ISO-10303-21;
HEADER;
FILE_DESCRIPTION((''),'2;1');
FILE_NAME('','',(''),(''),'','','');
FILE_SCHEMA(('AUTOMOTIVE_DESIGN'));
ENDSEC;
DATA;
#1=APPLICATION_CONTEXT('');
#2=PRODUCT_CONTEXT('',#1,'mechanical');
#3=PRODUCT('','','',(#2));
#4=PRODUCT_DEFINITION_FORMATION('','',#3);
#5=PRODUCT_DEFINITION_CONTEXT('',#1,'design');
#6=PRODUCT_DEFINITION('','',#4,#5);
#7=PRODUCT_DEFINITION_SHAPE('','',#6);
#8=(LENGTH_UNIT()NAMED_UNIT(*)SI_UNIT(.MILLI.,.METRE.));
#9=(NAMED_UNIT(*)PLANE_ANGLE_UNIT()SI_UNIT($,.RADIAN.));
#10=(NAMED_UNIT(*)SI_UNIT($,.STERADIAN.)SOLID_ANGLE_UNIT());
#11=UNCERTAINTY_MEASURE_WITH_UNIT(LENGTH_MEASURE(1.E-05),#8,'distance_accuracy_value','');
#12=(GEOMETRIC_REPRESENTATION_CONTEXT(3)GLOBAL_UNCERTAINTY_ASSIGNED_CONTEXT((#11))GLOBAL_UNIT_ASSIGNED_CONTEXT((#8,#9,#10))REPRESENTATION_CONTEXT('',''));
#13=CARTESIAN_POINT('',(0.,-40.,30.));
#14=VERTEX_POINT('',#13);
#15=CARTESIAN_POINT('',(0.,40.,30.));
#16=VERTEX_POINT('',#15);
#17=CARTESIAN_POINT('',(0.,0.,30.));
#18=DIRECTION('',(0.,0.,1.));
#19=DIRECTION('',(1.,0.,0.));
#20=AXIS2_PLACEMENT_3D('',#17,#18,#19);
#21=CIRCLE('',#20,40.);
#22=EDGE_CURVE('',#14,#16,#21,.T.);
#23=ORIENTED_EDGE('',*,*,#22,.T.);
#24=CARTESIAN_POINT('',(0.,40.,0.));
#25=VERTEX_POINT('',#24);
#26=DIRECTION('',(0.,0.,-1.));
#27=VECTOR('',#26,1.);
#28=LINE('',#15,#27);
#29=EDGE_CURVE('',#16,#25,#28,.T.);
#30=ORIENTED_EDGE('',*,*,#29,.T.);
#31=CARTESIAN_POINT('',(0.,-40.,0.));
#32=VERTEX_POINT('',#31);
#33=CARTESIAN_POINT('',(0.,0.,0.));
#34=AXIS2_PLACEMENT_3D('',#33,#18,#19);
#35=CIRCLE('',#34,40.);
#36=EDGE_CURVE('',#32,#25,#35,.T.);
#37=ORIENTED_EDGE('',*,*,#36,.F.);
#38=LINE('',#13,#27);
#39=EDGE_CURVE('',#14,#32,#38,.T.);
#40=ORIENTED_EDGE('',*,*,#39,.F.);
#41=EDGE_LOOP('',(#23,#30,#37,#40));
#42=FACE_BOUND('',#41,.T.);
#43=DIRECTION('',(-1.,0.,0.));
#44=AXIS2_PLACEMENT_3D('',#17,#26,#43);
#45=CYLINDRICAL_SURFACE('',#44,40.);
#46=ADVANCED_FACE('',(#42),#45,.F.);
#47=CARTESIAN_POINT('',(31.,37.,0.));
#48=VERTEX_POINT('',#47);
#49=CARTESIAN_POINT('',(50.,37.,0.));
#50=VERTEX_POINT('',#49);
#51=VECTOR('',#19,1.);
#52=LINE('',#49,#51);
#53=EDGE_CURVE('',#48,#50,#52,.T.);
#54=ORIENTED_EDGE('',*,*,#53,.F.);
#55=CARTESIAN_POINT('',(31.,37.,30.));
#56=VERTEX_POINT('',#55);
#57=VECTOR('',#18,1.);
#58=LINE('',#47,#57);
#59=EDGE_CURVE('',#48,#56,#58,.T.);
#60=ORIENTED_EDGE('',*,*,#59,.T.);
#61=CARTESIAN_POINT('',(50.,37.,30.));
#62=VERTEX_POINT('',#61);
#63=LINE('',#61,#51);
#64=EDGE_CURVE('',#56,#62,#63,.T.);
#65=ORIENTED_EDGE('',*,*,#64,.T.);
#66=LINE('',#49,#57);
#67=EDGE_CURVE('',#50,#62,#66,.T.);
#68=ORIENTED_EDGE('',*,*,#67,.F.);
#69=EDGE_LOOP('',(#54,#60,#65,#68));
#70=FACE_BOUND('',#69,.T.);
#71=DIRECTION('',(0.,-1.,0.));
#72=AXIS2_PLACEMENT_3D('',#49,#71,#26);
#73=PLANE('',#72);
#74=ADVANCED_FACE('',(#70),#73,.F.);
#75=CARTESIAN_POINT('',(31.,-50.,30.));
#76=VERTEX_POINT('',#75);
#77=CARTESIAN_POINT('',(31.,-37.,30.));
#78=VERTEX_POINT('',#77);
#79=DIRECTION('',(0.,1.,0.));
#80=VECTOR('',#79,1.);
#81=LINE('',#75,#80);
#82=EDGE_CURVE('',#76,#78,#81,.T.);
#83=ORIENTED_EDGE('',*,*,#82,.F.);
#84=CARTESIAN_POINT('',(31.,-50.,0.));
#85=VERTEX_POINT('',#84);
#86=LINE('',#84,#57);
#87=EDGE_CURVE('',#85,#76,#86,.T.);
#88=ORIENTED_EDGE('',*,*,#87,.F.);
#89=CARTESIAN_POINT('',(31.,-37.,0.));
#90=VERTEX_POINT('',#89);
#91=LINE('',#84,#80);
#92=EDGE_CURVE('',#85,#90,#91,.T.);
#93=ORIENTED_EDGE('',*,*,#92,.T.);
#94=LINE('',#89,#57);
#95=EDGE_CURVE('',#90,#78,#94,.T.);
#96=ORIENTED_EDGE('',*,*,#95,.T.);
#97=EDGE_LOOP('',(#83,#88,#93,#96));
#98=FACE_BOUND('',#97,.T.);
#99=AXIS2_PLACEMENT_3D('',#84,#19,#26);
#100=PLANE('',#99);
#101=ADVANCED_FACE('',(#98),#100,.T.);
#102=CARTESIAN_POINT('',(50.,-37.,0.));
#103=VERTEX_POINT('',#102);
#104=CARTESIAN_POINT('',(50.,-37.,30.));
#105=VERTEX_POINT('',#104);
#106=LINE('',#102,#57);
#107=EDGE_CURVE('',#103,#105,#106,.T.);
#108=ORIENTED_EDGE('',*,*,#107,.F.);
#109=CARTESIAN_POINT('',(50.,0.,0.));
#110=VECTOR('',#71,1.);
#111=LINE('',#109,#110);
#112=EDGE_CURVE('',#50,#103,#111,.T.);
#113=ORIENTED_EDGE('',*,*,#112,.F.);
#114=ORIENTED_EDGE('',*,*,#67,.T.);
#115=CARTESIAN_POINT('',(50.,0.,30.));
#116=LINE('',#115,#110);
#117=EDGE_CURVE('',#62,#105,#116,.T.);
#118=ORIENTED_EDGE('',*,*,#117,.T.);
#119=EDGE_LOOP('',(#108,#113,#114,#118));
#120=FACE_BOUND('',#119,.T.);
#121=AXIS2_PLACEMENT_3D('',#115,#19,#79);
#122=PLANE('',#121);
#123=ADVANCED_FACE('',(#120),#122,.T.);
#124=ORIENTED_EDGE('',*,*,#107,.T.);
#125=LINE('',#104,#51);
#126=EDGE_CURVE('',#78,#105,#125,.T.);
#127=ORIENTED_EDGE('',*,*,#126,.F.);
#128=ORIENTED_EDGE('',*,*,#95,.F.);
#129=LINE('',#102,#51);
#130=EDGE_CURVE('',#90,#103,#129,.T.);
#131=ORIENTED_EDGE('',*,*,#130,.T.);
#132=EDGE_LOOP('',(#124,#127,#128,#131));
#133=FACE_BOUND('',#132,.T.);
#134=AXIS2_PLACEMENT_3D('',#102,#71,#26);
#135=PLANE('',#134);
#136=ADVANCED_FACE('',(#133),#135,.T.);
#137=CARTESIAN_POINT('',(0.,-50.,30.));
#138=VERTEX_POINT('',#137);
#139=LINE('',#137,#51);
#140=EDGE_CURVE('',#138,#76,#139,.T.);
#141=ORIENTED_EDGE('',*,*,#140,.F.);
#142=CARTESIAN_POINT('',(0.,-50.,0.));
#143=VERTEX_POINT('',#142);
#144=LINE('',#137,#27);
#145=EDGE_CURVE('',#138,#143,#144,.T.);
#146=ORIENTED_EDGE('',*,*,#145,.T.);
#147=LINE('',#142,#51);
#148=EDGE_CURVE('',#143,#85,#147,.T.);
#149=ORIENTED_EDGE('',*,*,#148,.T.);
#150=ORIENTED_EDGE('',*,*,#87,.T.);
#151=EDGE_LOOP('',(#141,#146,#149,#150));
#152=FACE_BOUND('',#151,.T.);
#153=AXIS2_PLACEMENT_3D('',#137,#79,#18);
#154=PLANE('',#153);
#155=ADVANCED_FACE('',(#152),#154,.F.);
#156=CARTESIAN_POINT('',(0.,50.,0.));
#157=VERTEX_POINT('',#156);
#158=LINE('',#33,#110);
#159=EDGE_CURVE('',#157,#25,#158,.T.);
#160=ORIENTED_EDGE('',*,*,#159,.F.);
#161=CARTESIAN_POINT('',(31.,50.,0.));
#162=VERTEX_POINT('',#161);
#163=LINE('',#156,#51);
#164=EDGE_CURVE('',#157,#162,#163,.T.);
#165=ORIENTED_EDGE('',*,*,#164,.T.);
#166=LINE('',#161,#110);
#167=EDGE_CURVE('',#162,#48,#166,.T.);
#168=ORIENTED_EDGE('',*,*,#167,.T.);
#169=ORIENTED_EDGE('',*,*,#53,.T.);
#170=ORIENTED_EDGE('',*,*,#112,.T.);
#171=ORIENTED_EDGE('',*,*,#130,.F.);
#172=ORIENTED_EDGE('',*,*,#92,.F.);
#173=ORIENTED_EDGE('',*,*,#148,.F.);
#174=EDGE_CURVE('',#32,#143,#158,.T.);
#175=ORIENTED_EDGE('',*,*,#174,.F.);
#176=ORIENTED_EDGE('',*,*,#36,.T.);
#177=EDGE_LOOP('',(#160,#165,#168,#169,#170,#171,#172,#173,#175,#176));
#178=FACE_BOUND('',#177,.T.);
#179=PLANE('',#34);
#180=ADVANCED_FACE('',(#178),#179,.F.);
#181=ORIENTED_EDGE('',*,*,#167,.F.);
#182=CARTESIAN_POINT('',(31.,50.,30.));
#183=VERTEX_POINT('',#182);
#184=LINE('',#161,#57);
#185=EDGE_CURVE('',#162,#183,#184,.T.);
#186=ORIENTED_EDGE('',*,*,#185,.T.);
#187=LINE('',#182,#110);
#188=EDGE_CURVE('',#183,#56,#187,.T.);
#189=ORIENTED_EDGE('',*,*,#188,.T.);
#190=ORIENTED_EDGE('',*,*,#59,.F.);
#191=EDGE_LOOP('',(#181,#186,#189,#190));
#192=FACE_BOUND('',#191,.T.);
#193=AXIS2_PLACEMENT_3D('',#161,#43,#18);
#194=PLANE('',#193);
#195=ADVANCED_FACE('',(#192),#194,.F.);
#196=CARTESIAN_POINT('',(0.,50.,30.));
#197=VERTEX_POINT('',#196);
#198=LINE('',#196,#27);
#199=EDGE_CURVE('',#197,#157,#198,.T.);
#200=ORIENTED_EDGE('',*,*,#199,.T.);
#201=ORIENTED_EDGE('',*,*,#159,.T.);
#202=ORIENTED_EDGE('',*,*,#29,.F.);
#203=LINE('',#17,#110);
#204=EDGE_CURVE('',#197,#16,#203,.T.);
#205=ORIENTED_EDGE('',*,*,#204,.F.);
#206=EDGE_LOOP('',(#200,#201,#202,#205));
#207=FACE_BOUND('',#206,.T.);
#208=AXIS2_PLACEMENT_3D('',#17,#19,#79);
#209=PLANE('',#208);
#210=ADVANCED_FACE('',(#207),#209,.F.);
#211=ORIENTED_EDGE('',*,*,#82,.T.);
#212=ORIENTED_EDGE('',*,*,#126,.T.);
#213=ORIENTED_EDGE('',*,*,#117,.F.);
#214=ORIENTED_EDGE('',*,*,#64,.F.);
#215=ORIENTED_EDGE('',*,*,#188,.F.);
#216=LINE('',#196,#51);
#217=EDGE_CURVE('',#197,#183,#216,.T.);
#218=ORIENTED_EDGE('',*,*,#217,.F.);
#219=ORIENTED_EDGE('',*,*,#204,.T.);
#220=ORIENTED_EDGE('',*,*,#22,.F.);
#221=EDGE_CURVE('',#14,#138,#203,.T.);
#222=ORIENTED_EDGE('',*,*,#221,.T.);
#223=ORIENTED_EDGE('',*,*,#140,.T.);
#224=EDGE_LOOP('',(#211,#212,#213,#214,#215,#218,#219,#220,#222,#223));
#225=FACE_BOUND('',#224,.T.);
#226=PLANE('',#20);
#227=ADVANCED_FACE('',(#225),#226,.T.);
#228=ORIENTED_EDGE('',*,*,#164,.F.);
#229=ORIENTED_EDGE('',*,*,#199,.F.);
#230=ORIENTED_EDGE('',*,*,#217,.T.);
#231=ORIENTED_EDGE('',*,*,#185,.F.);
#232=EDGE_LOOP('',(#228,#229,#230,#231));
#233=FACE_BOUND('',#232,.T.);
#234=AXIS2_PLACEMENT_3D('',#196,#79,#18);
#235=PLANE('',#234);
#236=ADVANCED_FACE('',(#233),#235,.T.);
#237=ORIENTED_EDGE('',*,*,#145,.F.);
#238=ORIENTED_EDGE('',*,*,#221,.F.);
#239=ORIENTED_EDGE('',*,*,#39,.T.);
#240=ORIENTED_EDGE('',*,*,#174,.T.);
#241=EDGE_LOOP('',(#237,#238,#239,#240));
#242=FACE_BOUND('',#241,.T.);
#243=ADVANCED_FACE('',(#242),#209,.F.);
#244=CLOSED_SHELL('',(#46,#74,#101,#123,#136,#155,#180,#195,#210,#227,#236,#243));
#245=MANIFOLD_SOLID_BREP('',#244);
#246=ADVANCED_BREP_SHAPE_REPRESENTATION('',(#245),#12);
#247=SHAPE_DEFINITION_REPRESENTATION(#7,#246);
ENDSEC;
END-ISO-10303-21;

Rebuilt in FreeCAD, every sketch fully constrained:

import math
import FreeCAD as App
import Part
import Sketcher
Q = App.Units.Quantity

doc = App.newDocument("Part")
body = doc.addObject("PartDesign::Body", "Body")

sketch1 = doc.addObject("Sketcher::SketchObject", "Sketch")
body.addObject(sketch1)
sketch1.AttachmentSupport = (doc.XY_Plane, [""])
sketch1.MapMode = "FlatFace"
sketch1.addGeometry(Part.LineSegment(App.Vector(50, 50, 0), App.Vector(0, 50, 0)), False)
sketch1.addGeometry(Part.LineSegment(App.Vector(0, 50, 0), App.Vector(0, 40, 0)), False)
sketch1.addGeometry(Part.ArcOfCircle(Part.Circle(App.Vector(0, 0, 0), App.Vector(0, 0, 1), 40), math.radians(0), math.radians(90)), False)
sketch1.addGeometry(Part.ArcOfCircle(Part.Circle(App.Vector(0, 0, 0), App.Vector(0, 0, 1), 40), math.radians(-90), math.radians(0)), False)
sketch1.addGeometry(Part.LineSegment(App.Vector(0, -40, 0), App.Vector(0, -50, 0)), False)
sketch1.addGeometry(Part.LineSegment(App.Vector(0, -50, 0), App.Vector(50, -50, 0)), False)
sketch1.addGeometry(Part.LineSegment(App.Vector(50, -50, 0), App.Vector(50, 50, 0)), False)
sketch1.addConstraint(Sketcher.Constraint("Coincident", 0, 2, 1, 1))
sketch1.addConstraint(Sketcher.Constraint("Coincident", 1, 2, 2, 2))
sketch1.addConstraint(Sketcher.Constraint("Tangent", 2, 1, 3, 2))
sketch1.addConstraint(Sketcher.Constraint("Coincident", 3, 1, 4, 1))
sketch1.addConstraint(Sketcher.Constraint("Coincident", 4, 2, 5, 1))
sketch1.addConstraint(Sketcher.Constraint("Coincident", 5, 2, 6, 1))
sketch1.addConstraint(Sketcher.Constraint("Coincident", 6, 2, 0, 1))
sketch1.addConstraint(Sketcher.Constraint("Horizontal", 0))
sketch1.addConstraint(Sketcher.Constraint("Vertical", 1))
sketch1.addConstraint(Sketcher.Constraint("Vertical", 4))
sketch1.addConstraint(Sketcher.Constraint("Horizontal", 5))
sketch1.addConstraint(Sketcher.Constraint("Vertical", 6))
sketch1.addConstraint(Sketcher.Constraint("Coincident", 2, 3, -1, 1))
sketch1.addConstraint(Sketcher.Constraint("Equal", 2, 3))
sketch1.addConstraint(Sketcher.Constraint("Symmetric", 0, 2, 4, 2, -1, 1))
sketch1.addConstraint(Sketcher.Constraint("PointOnObject", 0, 2, -2))
sketch1.addConstraint(Sketcher.Constraint("PointOnObject", 2, 1, -1))
sketch1.addConstraint(Sketcher.Constraint("Radius", 2, Q("40 mm")))
sketch1.addConstraint(Sketcher.Constraint("DistanceX", 0, 2, 0, 1, Q("50 mm")))
sketch1.addConstraint(Sketcher.Constraint("DistanceY", 1, 2, 1, 1, Q("10 mm")))
pad1 = doc.addObject("PartDesign::Pad", "Pad")
body.addObject(pad1)
pad1.Profile = sketch1
pad1.Length = 30

sketch2 = doc.addObject("Sketcher::SketchObject", "Sketch001")
body.addObject(sketch2)
sketch2.AttachmentSupport = (doc.XY_Plane, [""])
sketch2.MapMode = "FlatFace"
sketch2.AttachmentOffset = App.Placement(App.Vector(0, 0, 30), App.Rotation())
sketch2.addGeometry(Part.LineSegment(App.Vector(31, 50, 0), App.Vector(31, 37, 0)), False)
sketch2.addGeometry(Part.LineSegment(App.Vector(31, 37, 0), App.Vector(50, 37, 0)), False)
sketch2.addGeometry(Part.LineSegment(App.Vector(50, 37, 0), App.Vector(50, 50, 0)), False)
sketch2.addGeometry(Part.LineSegment(App.Vector(50, 50, 0), App.Vector(31, 50, 0)), False)
sketch2.addConstraint(Sketcher.Constraint("Coincident", 0, 2, 1, 1))
sketch2.addConstraint(Sketcher.Constraint("Coincident", 1, 2, 2, 1))
sketch2.addConstraint(Sketcher.Constraint("Coincident", 2, 2, 3, 1))
sketch2.addConstraint(Sketcher.Constraint("Coincident", 3, 2, 0, 1))
sketch2.addConstraint(Sketcher.Constraint("Vertical", 0))
sketch2.addConstraint(Sketcher.Constraint("Horizontal", 1))
sketch2.addConstraint(Sketcher.Constraint("Vertical", 2))
sketch2.addConstraint(Sketcher.Constraint("Horizontal", 3))
sketch2.addConstraint(Sketcher.Constraint("DistanceX", 1, 1, 1, 2, Q("19 mm")))
sketch2.addConstraint(Sketcher.Constraint("DistanceY", 0, 2, 0, 1, Q("13 mm")))
sketch2.addConstraint(Sketcher.Constraint("DistanceX", -1, 1, 0, 2, Q("31 mm")))
sketch2.addConstraint(Sketcher.Constraint("DistanceY", -1, 1, 0, 2, Q("37 mm")))
pocket1 = doc.addObject("PartDesign::Pocket", "Pocket")
body.addObject(pocket1)
pocket1.Profile = sketch2
pocket1.Type = "ThroughAll"
doc.recompute()

mirrored = doc.addObject("PartDesign::Mirrored", "Mirrored")
body.addObject(mirrored)
mirrored.Originals = [pocket1]
mirrored.MirrorPlane = (doc.XZ_Plane, [""])
body.Tip = mirrored

doc.recompute()
